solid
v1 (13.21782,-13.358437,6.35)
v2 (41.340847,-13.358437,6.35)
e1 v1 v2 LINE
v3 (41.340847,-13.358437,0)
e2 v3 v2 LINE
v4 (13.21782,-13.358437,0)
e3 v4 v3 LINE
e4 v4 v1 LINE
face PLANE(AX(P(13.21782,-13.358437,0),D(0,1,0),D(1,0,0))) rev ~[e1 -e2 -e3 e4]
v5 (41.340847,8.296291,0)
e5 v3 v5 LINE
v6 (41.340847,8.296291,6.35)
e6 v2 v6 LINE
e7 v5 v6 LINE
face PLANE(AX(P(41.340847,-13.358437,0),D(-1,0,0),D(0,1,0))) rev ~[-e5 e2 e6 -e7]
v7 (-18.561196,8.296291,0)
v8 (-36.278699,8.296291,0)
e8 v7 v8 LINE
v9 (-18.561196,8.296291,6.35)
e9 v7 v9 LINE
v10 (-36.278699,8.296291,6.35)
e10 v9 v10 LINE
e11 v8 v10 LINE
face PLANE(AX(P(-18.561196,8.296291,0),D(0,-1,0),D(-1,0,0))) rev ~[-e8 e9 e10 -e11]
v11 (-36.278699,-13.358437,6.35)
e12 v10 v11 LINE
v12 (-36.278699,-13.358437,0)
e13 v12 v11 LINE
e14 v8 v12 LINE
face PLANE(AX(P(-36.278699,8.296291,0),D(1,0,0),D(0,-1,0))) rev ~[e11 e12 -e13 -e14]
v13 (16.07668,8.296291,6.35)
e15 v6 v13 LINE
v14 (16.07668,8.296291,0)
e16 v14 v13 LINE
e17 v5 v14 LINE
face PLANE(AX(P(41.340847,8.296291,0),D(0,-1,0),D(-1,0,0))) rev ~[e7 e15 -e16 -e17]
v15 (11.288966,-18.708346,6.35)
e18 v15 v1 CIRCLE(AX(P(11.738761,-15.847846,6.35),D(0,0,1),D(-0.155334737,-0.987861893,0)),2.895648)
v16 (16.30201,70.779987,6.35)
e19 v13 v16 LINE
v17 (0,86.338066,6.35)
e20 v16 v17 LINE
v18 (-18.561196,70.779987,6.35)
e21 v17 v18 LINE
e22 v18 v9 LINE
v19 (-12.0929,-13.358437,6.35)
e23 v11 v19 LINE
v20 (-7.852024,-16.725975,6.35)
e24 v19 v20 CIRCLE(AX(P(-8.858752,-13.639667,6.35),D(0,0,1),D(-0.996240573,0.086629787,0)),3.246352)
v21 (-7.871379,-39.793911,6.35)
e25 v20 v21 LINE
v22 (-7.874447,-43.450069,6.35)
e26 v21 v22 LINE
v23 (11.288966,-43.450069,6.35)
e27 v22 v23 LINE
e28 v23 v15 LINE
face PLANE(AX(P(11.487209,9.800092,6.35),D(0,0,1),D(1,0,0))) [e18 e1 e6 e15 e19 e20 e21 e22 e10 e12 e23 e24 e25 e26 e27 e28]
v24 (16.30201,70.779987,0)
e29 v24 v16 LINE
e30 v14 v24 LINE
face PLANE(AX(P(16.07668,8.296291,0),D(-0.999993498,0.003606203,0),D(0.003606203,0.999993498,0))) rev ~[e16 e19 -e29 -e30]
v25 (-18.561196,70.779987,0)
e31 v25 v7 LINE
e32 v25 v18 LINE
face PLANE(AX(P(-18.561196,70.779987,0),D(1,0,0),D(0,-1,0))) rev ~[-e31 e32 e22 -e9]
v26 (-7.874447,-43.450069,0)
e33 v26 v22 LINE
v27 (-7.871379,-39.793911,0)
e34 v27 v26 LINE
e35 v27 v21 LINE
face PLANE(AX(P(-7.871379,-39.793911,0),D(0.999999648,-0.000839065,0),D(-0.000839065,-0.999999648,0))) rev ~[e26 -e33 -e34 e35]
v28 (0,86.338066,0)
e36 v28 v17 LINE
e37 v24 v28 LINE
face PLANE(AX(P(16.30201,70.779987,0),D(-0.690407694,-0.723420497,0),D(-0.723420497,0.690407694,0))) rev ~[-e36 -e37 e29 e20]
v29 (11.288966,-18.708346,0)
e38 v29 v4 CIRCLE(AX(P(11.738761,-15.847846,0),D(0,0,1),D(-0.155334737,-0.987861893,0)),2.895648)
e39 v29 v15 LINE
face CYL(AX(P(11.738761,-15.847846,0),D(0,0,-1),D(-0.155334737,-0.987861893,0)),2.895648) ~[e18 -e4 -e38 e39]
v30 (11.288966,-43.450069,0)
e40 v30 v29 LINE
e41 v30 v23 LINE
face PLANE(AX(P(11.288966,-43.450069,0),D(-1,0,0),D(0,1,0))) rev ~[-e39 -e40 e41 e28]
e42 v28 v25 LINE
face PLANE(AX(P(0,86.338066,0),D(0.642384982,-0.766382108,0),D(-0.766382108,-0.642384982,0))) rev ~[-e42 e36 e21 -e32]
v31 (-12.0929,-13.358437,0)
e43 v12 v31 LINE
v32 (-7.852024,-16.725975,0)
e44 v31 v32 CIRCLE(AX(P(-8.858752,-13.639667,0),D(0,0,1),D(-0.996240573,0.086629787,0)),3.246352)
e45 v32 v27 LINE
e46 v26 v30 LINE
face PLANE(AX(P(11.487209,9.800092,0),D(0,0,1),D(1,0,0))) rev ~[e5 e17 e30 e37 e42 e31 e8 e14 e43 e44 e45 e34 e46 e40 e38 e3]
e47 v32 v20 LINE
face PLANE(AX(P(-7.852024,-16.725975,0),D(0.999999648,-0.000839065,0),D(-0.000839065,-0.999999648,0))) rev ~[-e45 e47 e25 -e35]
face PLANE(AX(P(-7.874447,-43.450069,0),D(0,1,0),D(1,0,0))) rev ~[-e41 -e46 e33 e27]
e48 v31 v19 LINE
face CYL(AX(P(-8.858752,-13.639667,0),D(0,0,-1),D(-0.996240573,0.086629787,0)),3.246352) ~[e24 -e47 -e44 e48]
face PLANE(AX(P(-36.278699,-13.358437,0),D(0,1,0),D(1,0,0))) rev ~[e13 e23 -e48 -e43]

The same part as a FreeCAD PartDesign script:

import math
import FreeCAD as App
import Part
import Sketcher

V = App.Vector
Q = App.Units.Quantity

doc = App.newDocument("Part")
body = doc.addObject("PartDesign::Body", "Body")

sketch1 = body.newObject("Sketcher::SketchObject", "Sketch")
sketch1.AttachmentSupport = (doc.getObject("XY_Plane"), [""])
sketch1.MapMode = "FlatFace"
sketch1.addGeometry([
    Part.LineSegment(V(-18.6, 8.3, 0), V(-36.3, 8.3, 0)),
    Part.LineSegment(V(-36.3, 8.3, 0), V(-36.3, -13.4, 0)),
    Part.LineSegment(V(-36.3, -13.4, 0), V(-12.1, -13.4, 0)),
    Part.ArcOfCircle(Part.Circle(V(-8.9, -13.6, 0), V(0, 0, 1), 3.2), math.radians(175), math.radians(288)),
    Part.LineSegment(V(-7.9, -16.7, 0), V(-7.9, -39.8, 0)),
    Part.LineSegment(V(-7.9, -39.8, 0), V(-7.9, -43.5, 0)),
    Part.LineSegment(V(-7.9, -43.5, 0), V(11.3, -43.5, 0)),
    Part.LineSegment(V(11.3, -43.5, 0), V(11.3, -18.7, 0)),
    Part.ArcOfCircle(Part.Circle(V(11.7, -15.8, 0), V(0, 0, 1), 2.9), math.radians(-99), math.radians(59)),
    Part.LineSegment(V(13.2, -13.4, 0), V(41.3, -13.4, 0)),
    Part.LineSegment(V(41.3, -13.4, 0), V(41.3, 8.3, 0)),
    Part.LineSegment(V(41.3, 8.3, 0), V(16.1, 8.3, 0)),
    Part.LineSegment(V(16.1, 8.3, 0), V(16.3, 70.8, 0)),
    Part.LineSegment(V(16.3, 70.8, 0), V(0, 86.3, 0)),
    Part.LineSegment(V(0, 86.3, 0), V(-18.6, 70.8, 0)),
    Part.LineSegment(V(-18.6, 70.8, 0), V(-18.6, 8.3, 0)),
], False)
sketch1.addConstraint([
    Sketcher.Constraint("Coincident", 0, 2, 1, 1),
    Sketcher.Constraint("Coincident", 1, 2, 2, 1),
    Sketcher.Constraint("Coincident", 2, 2, 3, 1),
    Sketcher.Constraint("Coincident", 3, 2, 4, 1),
    Sketcher.Constraint("Coincident", 4, 2, 5, 1),
    Sketcher.Constraint("Coincident", 5, 2, 6, 1),
    Sketcher.Constraint("Coincident", 6, 2, 7, 1),
    Sketcher.Constraint("Coincident", 7, 2, 8, 1),
    Sketcher.Constraint("Coincident", 8, 2, 9, 1),
    Sketcher.Constraint("Coincident", 9, 2, 10, 1),
    Sketcher.Constraint("Coincident", 10, 2, 11, 1),
    Sketcher.Constraint("Coincident", 11, 2, 12, 1),
    Sketcher.Constraint("Coincident", 12, 2, 13, 1),
    Sketcher.Constraint("Coincident", 13, 2, 14, 1),
    Sketcher.Constraint("Coincident", 14, 2, 15, 1),
    Sketcher.Constraint("Coincident", 15, 2, 0, 1),
    Sketcher.Constraint("Horizontal", 0),
    Sketcher.Constraint("Vertical", 1),
    Sketcher.Constraint("Horizontal", 2),
    Sketcher.Constraint("Horizontal", 6),
    Sketcher.Constraint("Vertical", 7),
    Sketcher.Constraint("Horizontal", 9),
    Sketcher.Constraint("Vertical", 10),
    Sketcher.Constraint("Horizontal", 11),
    Sketcher.Constraint("Vertical", 15),
    Sketcher.Constraint("PointOnObject", 13, 2, -2),
    Sketcher.Constraint("Parallel", 4, 5),
    Sketcher.Constraint("Horizontal", 2, 2, 8, 2),
    Sketcher.Constraint("Horizontal", 0, 2, 10, 2),
    Sketcher.Constraint("Horizontal", 12, 2, 14, 2),
    Sketcher.Constraint("Radius", 3, 3.246352),
    Sketcher.Constraint("DistanceX", 2, 1, 2, 2, 24.185799),
    Sketcher.Constraint("Radius", 8, 2.895648),
    Sketcher.Constraint("Distance", 12, 62.484102),
    Sketcher.Constraint("DistanceX", 0, 2, -1, 1, 36.278699),
    Sketcher.Constraint("DistanceY", 5, 2, 3, 3, 29.810401),
    Sketcher.Constraint("DistanceY", 7, 2, 8, 3, 2.8605),
    Sketcher.Constraint("DistanceX", 3, 3, 10, 2, 50.199599),
    Sketcher.Constraint("Distance", 5, 3.656159),
    Sketcher.Constraint("DistanceX", 0, 2, 0, 1, 17.717503),
    Sketcher.Constraint("DistanceX", 6, 1, 6, 2, 19.163413),
    Sketcher.Constraint("DistanceX", 9, 1, 9, 2, 28.123027),
    Sketcher.Constraint("DistanceX", 11, 2, 11, 1, 25.264167),
    Sketcher.Constraint("DistanceY", 1, 2, 1, 1, 21.654728),
    Sketcher.Constraint("DistanceY", 7, 1, 7, 2, 24.741723),
    Sketcher.Constraint("DistanceX", -1, 1, 8, 3, 11.738761),
    Sketcher.Constraint("DistanceY", -1, 1, 0, 2, 8.296291),
    Sketcher.Constraint("DistanceX", 4, 2, -1, 1, 7.871379),
    Sketcher.Constraint("DistanceX", -1, 1, 12, 2, 16.30201),
    Sketcher.Constraint("DistanceY", 12, 2, 13, 2, 15.558079),
])
pad1 = body.newObject("PartDesign::Pad", "Pad")
pad1.Profile = sketch1
pad1.Length = Q("0.25 in")

doc.recompute()
